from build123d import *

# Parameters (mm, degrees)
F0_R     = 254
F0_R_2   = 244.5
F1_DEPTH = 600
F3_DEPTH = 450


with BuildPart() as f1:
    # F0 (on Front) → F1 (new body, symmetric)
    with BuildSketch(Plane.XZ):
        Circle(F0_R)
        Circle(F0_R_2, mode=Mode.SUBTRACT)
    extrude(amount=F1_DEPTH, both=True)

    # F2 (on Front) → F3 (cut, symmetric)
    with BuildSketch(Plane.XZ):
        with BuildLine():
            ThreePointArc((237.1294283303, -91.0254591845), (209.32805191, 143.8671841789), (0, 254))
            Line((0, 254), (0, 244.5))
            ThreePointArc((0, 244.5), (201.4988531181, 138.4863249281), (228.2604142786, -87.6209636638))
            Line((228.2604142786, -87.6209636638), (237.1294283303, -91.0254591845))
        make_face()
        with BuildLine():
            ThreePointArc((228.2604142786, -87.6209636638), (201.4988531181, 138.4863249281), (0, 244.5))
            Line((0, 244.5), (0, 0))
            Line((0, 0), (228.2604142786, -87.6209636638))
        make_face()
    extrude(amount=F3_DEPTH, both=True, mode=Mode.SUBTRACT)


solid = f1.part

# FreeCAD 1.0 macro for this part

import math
import FreeCAD as App
import Part
import Sketcher

V = App.Vector
Q = App.Units.Quantity

doc = App.newDocument("Part")
body = doc.addObject("PartDesign::Body", "Body")

# Sketch on XZ plane
sketch1 = body.newObject("Sketcher::SketchObject", "Sketch")
sketch1.AttachmentSupport = (doc.getObject("XZ_Plane"), [""])
sketch1.MapMode = "FlatFace"
sketch1.addGeometry([
    Part.Circle(V(0, 0, 0), V(0, 0, 1), 254),
    Part.Circle(V(0, 0, 0), V(0, 0, 1), 244.5),
], False)
sketch1.addConstraint([
    Sketcher.Constraint("Coincident", 0, 3, -1, 1),
    Sketcher.Constraint("Coincident", 1, 3, -1, 1),
    Sketcher.Constraint("Diameter", 0, Q("508 mm")),
    Sketcher.Constraint("Diameter", 1, Q("489 mm")),
])
pad1 = body.newObject("PartDesign::Pad", "Pad")
pad1.Profile = sketch1
pad1.Length = 1200
pad1.Midplane = True

# Sketch on XZ plane
sketch2 = body.newObject("Sketcher::SketchObject", "Sketch001")
sketch2.AttachmentSupport = (doc.getObject("XZ_Plane"), [""])
sketch2.MapMode = "FlatFace"
sketch2.addGeometry([
    Part.ArcOfCircle(Part.Circle(V(0, 0, 0), V(0, 0, 1), 254), math.radians(-21), math.radians(90)),
    Part.LineSegment(V(0, 254, 0), V(0, 0, 0)),
    Part.LineSegment(V(0, 0, 0), V(228.260414, -87.620964, 0)),
    Part.LineSegment(V(228.260414, -87.620964, 0), V(237.129428, -91.025459, 0)),
], False)
sketch2.addConstraint([
    Sketcher.Constraint("Coincident", 0, 2, 1, 1),
    Sketcher.Constraint("Coincident", 1, 2, 2, 1),
    Sketcher.Constraint("Coincident", 2, 2, 3, 1),
    Sketcher.Constraint("Coincident", 3, 2, 0, 1),
    Sketcher.Constraint("Vertical", 1),
    Sketcher.Constraint("Coincident", 0, 3, -1, 1),
    Sketcher.Constraint("Coincident", 1, 2, -1, 1),
    Sketcher.Constraint("Parallel", 2, 3),
    Sketcher.Constraint("Radius", 0, Q("254 mm")),
    Sketcher.Constraint("Angle", 2, Q("-21 deg")),
    Sketcher.Constraint("Distance", 2, Q("244.5 mm")),
])
pocket1 = body.newObject("PartDesign::Pocket", "Pocket")
pocket1.Profile = sketch2
pocket1.Length = 900
pocket1.Midplane = True

doc.recompute()
